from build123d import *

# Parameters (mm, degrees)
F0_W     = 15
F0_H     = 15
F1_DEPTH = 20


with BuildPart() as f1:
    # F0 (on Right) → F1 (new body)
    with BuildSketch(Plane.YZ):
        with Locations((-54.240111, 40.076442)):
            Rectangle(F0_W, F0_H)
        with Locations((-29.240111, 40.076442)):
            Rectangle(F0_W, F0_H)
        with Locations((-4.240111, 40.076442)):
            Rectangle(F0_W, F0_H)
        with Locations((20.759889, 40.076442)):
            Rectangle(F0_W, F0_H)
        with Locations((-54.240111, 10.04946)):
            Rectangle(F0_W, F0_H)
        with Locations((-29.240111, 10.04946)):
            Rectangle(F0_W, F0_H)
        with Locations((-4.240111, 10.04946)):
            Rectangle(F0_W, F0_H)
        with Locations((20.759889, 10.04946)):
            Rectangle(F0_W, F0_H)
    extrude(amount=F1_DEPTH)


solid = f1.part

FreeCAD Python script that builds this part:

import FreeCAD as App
import Part
import Sketcher
from FreeCAD import Vector
Q = App.Units.Quantity

doc = App.newDocument("Part")
params = doc.addObject("Spreadsheet::Sheet", "Params")
for row, (alias, value) in enumerate([
    ("sketch1_width", "15 mm"),
    ("pad1_length", "20 mm"),
], start=1):
    params.set(f"A{row}", alias)
    params.set(f"B{row}", "=" + value)
    params.setAlias(f"B{row}", alias)

body = doc.addObject("PartDesign::Body", "Body")
body.AllowCompound = True

# Sketch on YZ plane
sketch1 = body.newObject("Sketcher::SketchObject", "Sketch")
sketch1.AttachmentSupport = (doc.getObject("YZ_Plane"), [""])
sketch1.MapMode = "FlatFace"
sketch1.addGeometry([
    Part.LineSegment(Vector(-62, 48, 0), Vector(-62, 33, 0)),  # 0
    Part.LineSegment(Vector(-62, 33, 0), Vector(-47, 33, 0)),  # 1
    Part.LineSegment(Vector(-47, 33, 0), Vector(-47, 48, 0)),  # 2
    Part.LineSegment(Vector(-47, 48, 0), Vector(-62, 48, 0)),  # 3
    Part.LineSegment(Vector(-37, 48, 0), Vector(-37, 33, 0)),  # 4
    Part.LineSegment(Vector(-37, 33, 0), Vector(-22, 33, 0)),  # 5
    Part.LineSegment(Vector(-22, 33, 0), Vector(-22, 48, 0)),  # 6
    Part.LineSegment(Vector(-22, 48, 0), Vector(-37, 48, 0)),  # 7
    Part.LineSegment(Vector(-12, 48, 0), Vector(-12, 33, 0)),  # 8
    Part.LineSegment(Vector(-12, 33, 0), Vector(3, 33, 0)),  # 9
    Part.LineSegment(Vector(3, 33, 0), Vector(3, 48, 0)),  # 10
    Part.LineSegment(Vector(3, 48, 0), Vector(-12, 48, 0)),  # 11
    Part.LineSegment(Vector(13, 48, 0), Vector(13, 33, 0)),  # 12
    Part.LineSegment(Vector(13, 33, 0), Vector(28, 33, 0)),  # 13
    Part.LineSegment(Vector(28, 33, 0), Vector(28, 48, 0)),  # 14
    Part.LineSegment(Vector(28, 48, 0), Vector(13, 48, 0)),  # 15
    Part.LineSegment(Vector(-62, 18, 0), Vector(-62, 3, 0)),  # 16
    Part.LineSegment(Vector(-62, 3, 0), Vector(-47, 3, 0)),  # 17
    Part.LineSegment(Vector(-47, 3, 0), Vector(-47, 18, 0)),  # 18
    Part.LineSegment(Vector(-47, 18, 0), Vector(-62, 18, 0)),  # 19
    Part.LineSegment(Vector(-37, 18, 0), Vector(-37, 3, 0)),  # 20
    Part.LineSegment(Vector(-37, 3, 0), Vector(-22, 3, 0)),  # 21
    Part.LineSegment(Vector(-22, 3, 0), Vector(-22, 18, 0)),  # 22
    Part.LineSegment(Vector(-22, 18, 0), Vector(-37, 18, 0)),  # 23
    Part.LineSegment(Vector(-12, 18, 0), Vector(-12, 3, 0)),  # 24
    Part.LineSegment(Vector(-12, 3, 0), Vector(3, 3, 0)),  # 25
    Part.LineSegment(Vector(3, 3, 0), Vector(3, 18, 0)),  # 26
    Part.LineSegment(Vector(3, 18, 0), Vector(-12, 18, 0)),  # 27
    Part.LineSegment(Vector(13, 18, 0), Vector(13, 3, 0)),  # 28
    Part.LineSegment(Vector(13, 3, 0), Vector(28, 3, 0)),  # 29
    Part.LineSegment(Vector(28, 3, 0), Vector(28, 18, 0)),  # 30
    Part.LineSegment(Vector(28, 18, 0), Vector(13, 18, 0)),  # 31
], False)
sketch1.addConstraint([
    Sketcher.Constraint("Coincident", 0, 2, 1, 1),
    Sketcher.Constraint("Coincident", 1, 2, 2, 1),
    Sketcher.Constraint("Coincident", 2, 2, 3, 1),
    Sketcher.Constraint("Coincident", 3, 2, 0, 1),
    Sketcher.Constraint("Coincident", 4, 2, 5, 1),
    Sketcher.Constraint("Coincident", 5, 2, 6, 1),
    Sketcher.Constraint("Coincident", 6, 2, 7, 1),
    Sketcher.Constraint("Coincident", 7, 2, 4, 1),
    Sketcher.Constraint("Coincident", 8, 2, 9, 1),
    Sketcher.Constraint("Coincident", 9, 2, 10, 1),
    Sketcher.Constraint("Coincident", 10, 2, 11, 1),
    Sketcher.Constraint("Coincident", 11, 2, 8, 1),
    Sketcher.Constraint("Coincident", 12, 2, 13, 1),
    Sketcher.Constraint("Coincident", 13, 2, 14, 1),
    Sketcher.Constraint("Coincident", 14, 2, 15, 1),
    Sketcher.Constraint("Coincident", 15, 2, 12, 1),
    Sketcher.Constraint("Coincident", 16, 2, 17, 1),
    Sketcher.Constraint("Coincident", 17, 2, 18, 1),
    Sketcher.Constraint("Coincident", 18, 2, 19, 1),
    Sketcher.Constraint("Coincident", 19, 2, 16, 1),
    Sketcher.Constraint("Coincident", 20, 2, 21, 1),
    Sketcher.Constraint("Coincident", 21, 2, 22, 1),
    Sketcher.Constraint("Coincident", 22, 2, 23, 1),
    Sketcher.Constraint("Coincident", 23, 2, 20, 1),
    Sketcher.Constraint("Coincident", 24, 2, 25, 1),
    Sketcher.Constraint("Coincident", 25, 2, 26, 1),
    Sketcher.Constraint("Coincident", 26, 2, 27, 1),
    Sketcher.Constraint("Coincident", 27, 2, 24, 1),
    Sketcher.Constraint("Coincident", 28, 2, 29, 1),
    Sketcher.Constraint("Coincident", 29, 2, 30, 1),
    Sketcher.Constraint("Coincident", 30, 2, 31, 1),
    Sketcher.Constraint("Coincident", 31, 2, 28, 1),
    Sketcher.Constraint("Vertical", 0),
    Sketcher.Constraint("Horizontal", 1),
    Sketcher.Constraint("Vertical", 2),
    Sketcher.Constraint("Horizontal", 3),
    Sketcher.Constraint("Vertical", 4),
    Sketcher.Constraint("Horizontal", 5),
    Sketcher.Constraint("Vertical", 6),
    Sketcher.Constraint("Horizontal", 7),
    Sketcher.Constraint("Vertical", 8),
    Sketcher.Constraint("Horizontal", 9),
    Sketcher.Constraint("Vertical", 10),
    Sketcher.Constraint("Horizontal", 11),
    Sketcher.Constraint("Vertical", 12),
    Sketcher.Constraint("Horizontal", 13),
    Sketcher.Constraint("Vertical", 14),
    Sketcher.Constraint("Horizontal", 15),
    Sketcher.Constraint("Vertical", 16),
    Sketcher.Constraint("Horizontal", 17),
    Sketcher.Constraint("Vertical", 18),
    Sketcher.Constraint("Horizontal", 19),
    Sketcher.Constraint("Vertical", 20),
    Sketcher.Constraint("Horizontal", 21),
    Sketcher.Constraint("Vertical", 22),
    Sketcher.Constraint("Horizontal", 23),
    Sketcher.Constraint("Vertical", 24),
    Sketcher.Constraint("Horizontal", 25),
    Sketcher.Constraint("Vertical", 26),
    Sketcher.Constraint("Horizontal", 27),
    Sketcher.Constraint("Vertical", 28),
    Sketcher.Constraint("Horizontal", 29),
    Sketcher.Constraint("Vertical", 30),
    Sketcher.Constraint("Horizontal", 31),
    Sketcher.Constraint("Horizontal", 1, 2, 4, 2),
    Sketcher.Constraint("Horizontal", 3, 2, 6, 2),
    Sketcher.Constraint("Horizontal", 5, 2, 8, 2),
    Sketcher.Constraint("Horizontal", 7, 2, 10, 2),
    Sketcher.Constraint("Horizontal", 9, 2, 12, 2),
    Sketcher.Constraint("Horizontal", 11, 2, 14, 2),
    Sketcher.Constraint("Horizontal", 17, 2, 20, 2),
    Sketcher.Constraint("Horizontal", 19, 2, 22, 2),
    Sketcher.Constraint("Horizontal", 21, 2, 24, 2),
    Sketcher.Constraint("Horizontal", 23, 2, 26, 2),
    Sketcher.Constraint("Horizontal", 25, 2, 28, 2),
    Sketcher.Constraint("Horizontal", 27, 2, 30, 2),
    Sketcher.Constraint("Vertical", 3, 2, 16, 2),
    Sketcher.Constraint("Vertical", 2, 2, 17, 2),
    Sketcher.Constraint("Vertical", 7, 2, 20, 2),
    Sketcher.Constraint("Vertical", 6, 2, 21, 2),
    Sketcher.Constraint("Vertical", 11, 2, 24, 2),
    Sketcher.Constraint("Vertical", 10, 2, 25, 2),
    Sketcher.Constraint("Vertical", 15, 2, 28, 2),
    Sketcher.Constraint("Vertical", 14, 2, 29, 2),
    Sketcher.Constraint("Equal", 3, 5),
    Sketcher.Constraint("Equal", 7, 9),
    Sketcher.Constraint("Equal", 11, 13),
    Sketcher.Constraint("Equal", 31, 0),
    Sketcher.Constraint("Equal", 14, 16),
    Sketcher.Constraint("DistanceX", 1, 1, 1, 2, Q("15 mm")),
    Sketcher.Constraint("DistanceX", 1, 2, 4, 2, Q("10 mm")),
    Sketcher.Constraint("DistanceX", 5, 2, 8, 2, Q("10 mm")),
    Sketcher.Constraint("DistanceX", 9, 2, 12, 2, Q("10 mm")),
    Sketcher.Constraint("DistanceX", 0, 2, -1, 1, Q("61.740111 mm")),
    Sketcher.Constraint("DistanceY", -1, 1, 16, 2, Q("2.54946 mm")),
    Sketcher.Constraint("DistanceY", -1, 1, 0, 2, Q("32.576442 mm")),
])
sketch1.setExpression("Constraints[89]", "Params.sketch1_width")
pad1 = body.newObject("PartDesign::Pad", "Pad")
pad1.Profile = sketch1
pad1.setExpression("Length", "Params.pad1_length")

doc.recompute()
